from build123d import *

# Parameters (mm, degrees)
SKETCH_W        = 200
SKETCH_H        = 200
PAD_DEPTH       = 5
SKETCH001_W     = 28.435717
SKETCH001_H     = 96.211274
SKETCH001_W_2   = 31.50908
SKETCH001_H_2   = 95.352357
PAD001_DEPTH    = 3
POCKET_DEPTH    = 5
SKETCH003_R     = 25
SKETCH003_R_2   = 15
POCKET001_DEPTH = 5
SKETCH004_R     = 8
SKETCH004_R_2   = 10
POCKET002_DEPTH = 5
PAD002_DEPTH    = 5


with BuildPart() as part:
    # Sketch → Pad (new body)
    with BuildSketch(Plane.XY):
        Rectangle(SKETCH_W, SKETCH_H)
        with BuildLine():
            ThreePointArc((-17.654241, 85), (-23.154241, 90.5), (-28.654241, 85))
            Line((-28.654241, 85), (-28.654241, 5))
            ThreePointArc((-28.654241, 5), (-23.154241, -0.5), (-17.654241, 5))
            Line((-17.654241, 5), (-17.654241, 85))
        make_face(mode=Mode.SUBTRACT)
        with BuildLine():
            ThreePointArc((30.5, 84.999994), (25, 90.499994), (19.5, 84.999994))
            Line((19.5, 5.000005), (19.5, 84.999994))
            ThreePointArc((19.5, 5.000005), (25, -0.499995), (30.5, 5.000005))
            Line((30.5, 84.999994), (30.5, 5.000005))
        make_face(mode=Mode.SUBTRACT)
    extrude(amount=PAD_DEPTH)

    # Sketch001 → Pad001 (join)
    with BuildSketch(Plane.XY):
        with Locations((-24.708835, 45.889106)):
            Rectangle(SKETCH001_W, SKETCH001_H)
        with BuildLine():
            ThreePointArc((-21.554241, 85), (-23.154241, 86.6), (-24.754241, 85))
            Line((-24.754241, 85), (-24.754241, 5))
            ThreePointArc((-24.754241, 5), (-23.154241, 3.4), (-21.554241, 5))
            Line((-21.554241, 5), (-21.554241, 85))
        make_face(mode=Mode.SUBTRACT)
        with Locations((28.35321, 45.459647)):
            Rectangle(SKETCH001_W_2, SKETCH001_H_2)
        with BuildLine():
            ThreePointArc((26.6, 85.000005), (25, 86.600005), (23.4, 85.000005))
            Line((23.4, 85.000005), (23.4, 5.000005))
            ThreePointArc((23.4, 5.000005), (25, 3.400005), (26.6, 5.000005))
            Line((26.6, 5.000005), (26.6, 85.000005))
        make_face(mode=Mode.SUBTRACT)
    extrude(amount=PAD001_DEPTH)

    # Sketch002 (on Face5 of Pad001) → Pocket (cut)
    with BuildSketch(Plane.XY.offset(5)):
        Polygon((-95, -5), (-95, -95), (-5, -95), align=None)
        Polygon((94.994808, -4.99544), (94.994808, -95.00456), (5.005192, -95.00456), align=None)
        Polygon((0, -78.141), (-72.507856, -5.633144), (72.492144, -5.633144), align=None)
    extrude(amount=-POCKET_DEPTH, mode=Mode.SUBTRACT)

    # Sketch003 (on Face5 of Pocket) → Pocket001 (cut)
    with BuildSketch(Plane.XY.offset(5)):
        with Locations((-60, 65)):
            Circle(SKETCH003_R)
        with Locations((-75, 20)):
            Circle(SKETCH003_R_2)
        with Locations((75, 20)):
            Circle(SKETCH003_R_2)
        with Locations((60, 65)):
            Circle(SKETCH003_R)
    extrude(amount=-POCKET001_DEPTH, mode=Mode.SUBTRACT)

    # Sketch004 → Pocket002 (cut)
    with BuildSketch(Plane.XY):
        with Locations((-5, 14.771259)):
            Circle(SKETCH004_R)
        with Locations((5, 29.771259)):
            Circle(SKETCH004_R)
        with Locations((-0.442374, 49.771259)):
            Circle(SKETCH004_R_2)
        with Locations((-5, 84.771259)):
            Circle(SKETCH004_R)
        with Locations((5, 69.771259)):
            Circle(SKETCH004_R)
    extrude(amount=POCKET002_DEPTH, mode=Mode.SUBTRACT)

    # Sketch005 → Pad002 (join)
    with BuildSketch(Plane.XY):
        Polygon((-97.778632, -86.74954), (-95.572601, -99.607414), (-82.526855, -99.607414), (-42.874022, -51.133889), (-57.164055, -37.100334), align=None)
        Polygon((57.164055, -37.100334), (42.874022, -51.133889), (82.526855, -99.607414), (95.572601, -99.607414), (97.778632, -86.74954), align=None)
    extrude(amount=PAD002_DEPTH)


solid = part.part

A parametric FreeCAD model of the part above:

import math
import FreeCAD as App
import Part
import Sketcher

V = App.Vector
Q = App.Units.Quantity

doc = App.newDocument("Part")
params = doc.addObject("Spreadsheet::Sheet", "Params")
for row, (alias, value) in enumerate([
    ("sketch1_radius", "5.5 mm"),
    ("sketch1_width", "200 mm"),
    ("sketch1_height", "80 mm"),
    ("pad1_length", "5 mm"),
    ("sketch2_radius", "1.6 mm"),
    ("sketch2_height", "80 mm"),
    ("pad2_length", "3 mm"),
    ("sketch3_width", "90 mm"),
    ("sketch3_width2", "145 mm"),
    ("pocket1_length", "5 mm"),
    ("sketch4_diameter", "50 mm"),
    ("sketch4_diameter2", "30 mm"),
    ("pocket2_length", "5 mm"),
    ("sketch5_diameter", "16 mm"),
    ("sketch5_diameter2", "20 mm"),
    ("pocket3_length", "5 mm"),
    ("pad3_length", "5 mm"),
], start=1):
    params.set(f"A{row}", alias)
    params.set(f"B{row}", "=" + value)
    params.setAlias(f"B{row}", alias)

body = doc.addObject("PartDesign::Body", "Body")

# Sketch on XY plane
sketch1 = body.newObject("Sketcher::SketchObject", "Sketch")
sketch1.AttachmentSupport = (doc.getObject("XY_Plane"), [""])
sketch1.MapMode = "FlatFace"
sketch1.addGeometry([
    Part.LineSegment(V(-100, 100, 0), V(-100, -100, 0)),  # 0
    Part.LineSegment(V(-100, -100, 0), V(100, -100, 0)),  # 1
    Part.LineSegment(V(100, -100, 0), V(100, 100, 0)),  # 2
    Part.LineSegment(V(100, 100, 0), V(-100, 100, 0)),  # 3
    Part.ArcOfCircle(Part.Circle(V(25, 85, 0), V(0, 0, 1), 6), math.radians(0), math.radians(180)),  # 4
    Part.LineSegment(V(30, 85, 0), V(30, 5, 0)),  # 5
    Part.ArcOfCircle(Part.Circle(V(25, 5, 0), V(0, 0, 1), 6), math.radians(180), math.radians(360)),  # 6
    Part.LineSegment(V(20, 5, 0), V(20, 85, 0)),  # 7
    Part.ArcOfCircle(Part.Circle(V(-23, 85, 0), V(0, 0, 1), 6), math.radians(0), math.radians(180)),  # 8
    Part.LineSegment(V(-18, 85, 0), V(-18, 5, 0)),  # 9
    Part.ArcOfCircle(Part.Circle(V(-23, 5, 0), V(0, 0, 1), 6), math.radians(180), math.radians(360)),  # 10
    Part.LineSegment(V(-29, 5, 0), V(-29, 85, 0)),  # 11
], False)
sketch1.addConstraint([
    Sketcher.Constraint("Coincident", 0, 2, 1, 1),
    Sketcher.Constraint("Coincident", 1, 2, 2, 1),
    Sketcher.Constraint("Coincident", 2, 2, 3, 1),
    Sketcher.Constraint("Coincident", 3, 2, 0, 1),
    Sketcher.Constraint("Tangent", 4, 1, 5, 1),
    Sketcher.Constraint("Tangent", 5, 2, 6, 2),
    Sketcher.Constraint("Tangent", 6, 1, 7, 1),
    Sketcher.Constraint("Tangent", 7, 2, 4, 2),
    Sketcher.Constraint("Tangent", 8, 1, 9, 1),
    Sketcher.Constraint("Tangent", 9, 2, 10, 2),
    Sketcher.Constraint("Tangent", 10, 1, 11, 1),
    Sketcher.Constraint("Tangent", 11, 2, 8, 2),
    Sketcher.Constraint("Vertical", 0),
    Sketcher.Constraint("Horizontal", 1),
    Sketcher.Constraint("Vertical", 2),
    Sketcher.Constraint("Horizontal", 3),
    Sketcher.Constraint("Vertical", 5),
    Sketcher.Constraint("Vertical", 7),
    Sketcher.Constraint("Vertical", 9),
    Sketcher.Constraint("Vertical", 11),
    Sketcher.Constraint("Equal", 6, 8),
    Sketcher.Constraint("Symmetric", 0, 2, 2, 2, -1, 1),
    Sketcher.Constraint("Equal", 3, 0),
    Sketcher.Constraint("Radius", 4, Q("5.5 mm")),
    Sketcher.Constraint("DistanceX", 1, 1, 1, 2, Q("200 mm")),
    Sketcher.Constraint("DistanceY", 9, 2, 9, 1, Q("80 mm")),
    Sketcher.Constraint("DistanceX", -1, 1, 4, 3, Q("25 mm")),
    Sketcher.Constraint("DistanceY", -1, 1, 8, 3, Q("85 mm")),
    Sketcher.Constraint("DistanceY", 5, 2, 5, 1, Q("79.999989 mm")),
    Sketcher.Constraint("DistanceX", 8, 3, -1, 1, Q("23.154241 mm")),
    Sketcher.Constraint("DistanceY", -1, 1, 4, 3, Q("84.999994 mm")),
])
sketch1.setExpression("Constraints[23]", "Params.sketch1_radius")
sketch1.setExpression("Constraints[24]", "Params.sketch1_width")
sketch1.setExpression("Constraints[25]", "Params.sketch1_height")
pad1 = body.newObject("PartDesign::Pad", "Pad")
pad1.Profile = sketch1
pad1.setExpression("Length", "Params.pad1_length")

# Sketch on XY plane
sketch2 = body.newObject("Sketcher::SketchObject", "Sketch001")
sketch2.AttachmentSupport = (doc.getObject("XY_Plane"), [""])
sketch2.MapMode = "FlatFace"
sketch2.addGeometry([
    Part.LineSegment(V(-38.9, 94, 0), V(-38.9, -2.2, 0)),  # 0
    Part.LineSegment(V(-38.9, -2.2, 0), V(-10.5, -2.2, 0)),  # 1
    Part.LineSegment(V(-10.5, -2.2, 0), V(-10.5, 94, 0)),  # 2
    Part.LineSegment(V(-10.5, 94, 0), V(-38.9, 94, 0)),  # 3
    Part.ArcOfCircle(Part.Circle(V(-23.2, 85, 0), V(0, 0, 1), 1.6), math.radians(0), math.radians(180)),  # 4
    Part.LineSegment(V(-21.6, 85, 0), V(-21.6, 5, 0)),  # 5
    Part.ArcOfCircle(Part.Circle(V(-23.2, 5, 0), V(0, 0, 1), 1.6), math.radians(180), math.radians(360)),  # 6
    Part.LineSegment(V(-24.8, 5, 0), V(-24.8, 85, 0)),  # 7
    Part.LineSegment(V(12.6, 93.1, 0), V(12.6, -2.2, 0)),  # 8
    Part.LineSegment(V(12.6, -2.2, 0), V(44.1, -2.2, 0)),  # 9
    Part.LineSegment(V(44.1, -2.2, 0), V(44.1, 93.1, 0)),  # 10
    Part.LineSegment(V(44.1, 93.1, 0), V(12.6, 93.1, 0)),  # 11
    Part.ArcOfCircle(Part.Circle(V(25, 85, 0), V(0, 0, 1), 1.6), math.radians(0), math.radians(180)),  # 12
    Part.LineSegment(V(26.6, 85, 0), V(26.6, 5, 0)),  # 13
    Part.ArcOfCircle(Part.Circle(V(25, 5, 0), V(0, 0, 1), 1.6), math.radians(180), math.radians(360)),  # 14
    Part.LineSegment(V(23.4, 5, 0), V(23.4, 85, 0)),  # 15
], False)
sketch2.addConstraint([
    Sketcher.Constraint("Coincident", 0, 2, 1, 1),
    Sketcher.Constraint("Coincident", 1, 2, 2, 1),
    Sketcher.Constraint("Coincident", 2, 2, 3, 1),
    Sketcher.Constraint("Coincident", 3, 2, 0, 1),
    Sketcher.Constraint("Tangent", 4, 1, 5, 1),
    Sketcher.Constraint("Tangent", 5, 2, 6, 2),
    Sketcher.Constraint("Tangent", 6, 1, 7, 1),
    Sketcher.Constraint("Tangent", 7, 2, 4, 2),
    Sketcher.Constraint("Coincident", 8, 2, 9, 1),
    Sketcher.Constraint("Coincident", 9, 2, 10, 1),
    Sketcher.Constraint("Coincident", 10, 2, 11, 1),
    Sketcher.Constraint("Coincident", 11, 2, 8, 1),
    Sketcher.Constraint("Tangent", 12, 1, 13, 1),
    Sketcher.Constraint("Tangent", 13, 2, 14, 2),
    Sketcher.Constraint("Tangent", 14, 1, 15, 1),
    Sketcher.Constraint("Tangent", 15, 2, 12, 2),
    Sketcher.Constraint("Vertical", 0),
    Sketcher.Constraint("Horizontal", 1),
    Sketcher.Constraint("Vertical", 2),
    Sketcher.Constraint("Horizontal", 3),
    Sketcher.Constraint("Vertical", 5),
    Sketcher.Constraint("Vertical", 7),
    Sketcher.Constraint("Vertical", 8),
    Sketcher.Constraint("Horizontal", 9),
    Sketcher.Constraint("Vertical", 10),
    Sketcher.Constraint("Horizontal", 11),
    Sketcher.Constraint("Vertical", 13),
    Sketcher.Constraint("Vertical", 15),
    Sketcher.Constraint("Equal", 6, 12),
    Sketcher.Constraint("Horizontal", 1, 2, 8, 2),
    Sketcher.Constraint("Equal", 7, 13),
    Sketcher.Constraint("Radius", 4, Q("1.6 mm")),
    Sketcher.Constraint("DistanceY", 5, 2, 5, 1, Q("80 mm")),
    Sketcher.Constraint("DistanceY", -1, 1, 4, 3, Q("85 mm")),
    Sketcher.Constraint("DistanceX", -1, 1, 12, 3, Q("25 mm")),
    Sketcher.Constraint("DistanceX", 9, 1, 9, 2, Q("31.50908 mm")),
    Sketcher.Constraint("DistanceX", 1, 1, 1, 2, Q("28.435717 mm")),
    Sketcher.Constraint("DistanceY", 0, 2, 0, 1, Q("96.211274 mm")),
    Sketcher.Constraint("DistanceY", 8, 2, 8, 1, Q("95.352357 mm")),
    Sketcher.Constraint("DistanceX", 4, 3, -1, 1, Q("23.154241 mm")),
    Sketcher.Constraint("DistanceY", 0, 2, -1, 1, Q("2.216531 mm")),
    Sketcher.Constraint("DistanceX", -1, 1, 8, 2, Q("12.59867 mm")),
    Sketcher.Constraint("DistanceY", 14, 3, 2, 2, Q("88.994738 mm")),
    Sketcher.Constraint("DistanceX", 0, 2, -1, 1, Q("38.926693 mm")),
])
sketch2.setExpression("Constraints[31]", "Params.sketch2_radius")
sketch2.setExpression("Constraints[32]", "Params.sketch2_height")
pad2 = body.newObject("PartDesign::Pad", "Pad001")
pad2.Profile = sketch2
pad2.setExpression("Length", "Params.pad2_length")

# Sketch on XY plane
sketch3 = body.newObject("Sketcher::SketchObject", "Sketch002")
sketch3.AttachmentSupport = (doc.getObject("XY_Plane"), [""])
sketch3.MapMode = "FlatFace"
sketch3.AttachmentOffset = App.Placement(V(0, 0, 5), App.Rotation())
sketch3.addGeometry([
    Part.LineSegment(V(-95, -5, 0), V(-95, -95, 0)),  # 0
    Part.LineSegment(V(-95, -95, 0), V(-5, -95, 0)),  # 1
    Part.LineSegment(V(-5, -95, 0), V(-95, -5, 0)),  # 2
    Part.LineSegment(V(95, -95, 0), V(95, -5, 0)),  # 3
    Part.LineSegment(V(95, -5, 0), V(5, -95, 0)),  # 4
    Part.LineSegment(V(5, -95, 0), V(95, -95, 0)),  # 5
    Part.LineSegment(V(-73, -6, 0), V(0, -78, 0)),  # 6
    Part.LineSegment(V(0, -78, 0), V(72, -6, 0)),  # 7
    Part.LineSegment(V(72, -6, 0), V(-73, -6, 0)),  # 8
], False)
sketch3.addConstraint([
    Sketcher.Constraint("Coincident", 0, 2, 1, 1),
    Sketcher.Constraint("Coincident", 1, 2, 2, 1),
    Sketcher.Constraint("Coincident", 2, 2, 0, 1),
    Sketcher.Constraint("Coincident", 3, 2, 4, 1),
    Sketcher.Constraint("Coincident", 4, 2, 5, 1),
    Sketcher.Constraint("Coincident", 5, 2, 3, 1),
    Sketcher.Constraint("Coincident", 6, 2, 7, 1),
    Sketcher.Constraint("Coincident", 7, 2, 8, 1),
    Sketcher.Constraint("Coincident", 8, 2, 6, 1),
    Sketcher.Constraint("Vertical", 0),
    Sketcher.Constraint("Horizontal", 1),
    Sketcher.Constraint("Vertical", 3),
    Sketcher.Constraint("Horizontal", 5),
    Sketcher.Constraint("Horizontal", 8),
    Sketcher.Constraint("PointOnObject", 6, 2, -2),
    Sketcher.Constraint("Parallel", 2, 6),
    Sketcher.Constraint("Parallel", 4, 7),
    Sketcher.Constraint("Equal", 1, 0),
    Sketcher.Constraint("DistanceX", 1, 1, 1, 2, Q("90 mm")),
    Sketcher.Constraint("DistanceX", 8, 2, 8, 1, Q("145 mm")),
    Sketcher.Constraint("DistanceX", 0, 2, -1, 1, Q("95 mm")),
    Sketcher.Constraint("DistanceY", 0, 2, -1, 1, Q("95 mm")),
    Sketcher.Constraint("DistanceY", 6, 2, -1, 1, Q("78.141 mm")),
    Sketcher.Constraint("DistanceY", 3, 1, 3, 2, Q("90.00912 mm")),
    Sketcher.Constraint("DistanceX", 5, 1, 5, 2, Q("89.989616 mm")),
    Sketcher.Constraint("DistanceX", -1, 1, 3, 2, Q("94.994808 mm")),
    Sketcher.Constraint("DistanceY", 3, 2, -1, 1, Q("4.99544 mm")),
])
sketch3.setExpression("Constraints[18]", "Params.sketch3_width")
sketch3.setExpression("Constraints[19]", "Params.sketch3_width2")
pocket1 = body.newObject("PartDesign::Pocket", "Pocket")
pocket1.Profile = sketch3
pocket1.setExpression("Length", "Params.pocket1_length")

# Sketch on XY plane
sketch4 = body.newObject("Sketcher::SketchObject", "Sketch003")
sketch4.AttachmentSupport = (doc.getObject("XY_Plane"), [""])
sketch4.MapMode = "FlatFace"
sketch4.AttachmentOffset = App.Placement(V(0, 0, 5), App.Rotation())
sketch4.addGeometry([
    Part.Circle(V(-60, 65, 0), V(0, 0, 1), 25),
    Part.Circle(V(-75, 20, 0), V(0, 0, 1), 15),
    Part.Circle(V(75, 20, 0), V(0, 0, 1), 15),
    Part.Circle(V(60, 65, 0), V(0, 0, 1), 25),
], False)
sketch4.addConstraint([
    Sketcher.Constraint("Equal", 1, 2),
    Sketcher.Constraint("Equal", 0, 3),
    Sketcher.Constraint("Symmetric", 1, 3, 2, 3, -2),
    Sketcher.Constraint("Symmetric", 0, 3, 3, 3, -2),
    Sketcher.Constraint("Diameter", 0, Q("50 mm")),
    Sketcher.Constraint("Diameter", 1, Q("30 mm")),
    Sketcher.Constraint("DistanceX", 0, 3, -1, 1, Q("60 mm")),
    Sketcher.Constraint("DistanceY", -1, 1, 0, 3, Q("65 mm")),
    Sketcher.Constraint("DistanceX", 1, 3, -1, 1, Q("75 mm")),
    Sketcher.Constraint("DistanceY", -1, 1, 1, 3, Q("20 mm")),
])
sketch4.setExpression("Constraints[4]", "Params.sketch4_diameter")
sketch4.setExpression("Constraints[5]", "Params.sketch4_diameter2")
pocket2 = body.newObject("PartDesign::Pocket", "Pocket001")
pocket2.Profile = sketch4
pocket2.setExpression("Length", "Params.pocket2_length")

# Sketch on XY plane
sketch5 = body.newObject("Sketcher::SketchObject", "Sketch004")
sketch5.AttachmentSupport = (doc.getObject("XY_Plane"), [""])
sketch5.MapMode = "FlatFace"
sketch5.addGeometry([
    Part.Circle(V(-5, 15, 0), V(0, 0, 1), 8),  # 0
    Part.Circle(V(5, 30, 0), V(0, 0, 1), 8),  # 1
    Part.Circle(V(0, 50, 0), V(0, 0, 1), 10),  # 2
    Part.Circle(V(-5, 85, 0), V(0, 0, 1), 8),  # 3
    Part.Circle(V(5, 70, 0), V(0, 0, 1), 8),  # 4
], False)
sketch5.addConstraint([
    Sketcher.Constraint("Equal", 0, 1),
    Sketcher.Constraint("Equal", 1, 3),
    Sketcher.Constraint("Equal", 3, 4),
    Sketcher.Constraint("Vertical", 0, 3, 3, 3),
    Sketcher.Constraint("Vertical", 1, 3, 4, 3),
    Sketcher.Constraint("Diameter", 0, Q("16 mm")),
    Sketcher.Constraint("Diameter", 2, Q("20 mm")),
    Sketcher.Constraint("DistanceX", 0, 3, -1, 1, Q("5 mm")),
    Sketcher.Constraint("DistanceX", -1, 1, 1, 3, Q("5 mm")),
    Sketcher.Constraint("DistanceY", 0, 3, 1, 3, Q("15 mm")),
    Sketcher.Constraint("DistanceY", 1, 3, 2, 3, Q("20 mm")),
    Sketcher.Constraint("DistanceY", 2, 3, 3, 3, Q("35 mm")),
    Sketcher.Constraint("DistanceY", 4, 3, 3, 3, Q("15 mm")),
    Sketcher.Constraint("DistanceY", -1, 1, 0, 3, Q("14.771259 mm")),
    Sketcher.Constraint("DistanceX", 2, 3, -1, 1, Q("0.442374 mm")),
])
sketch5.setExpression("Constraints[5]", "Params.sketch5_diameter")
sketch5.setExpression("Constraints[6]", "Params.sketch5_diameter2")
pocket3 = body.newObject("PartDesign::Pocket", "Pocket002")
pocket3.Profile = sketch5
pocket3.setExpression("Length", "Params.pocket3_length")
pocket3.Reversed = True

# Sketch on XY plane
sketch6 = body.newObject("Sketcher::SketchObject", "Sketch005")
sketch6.AttachmentSupport = (doc.getObject("XY_Plane"), [""])
sketch6.MapMode = "FlatFace"
sketch6.addGeometry([
    Part.LineSegment(V(-98, -87, 0), V(-96, -100, 0)),  # 0
    Part.LineSegment(V(-96, -100, 0), V(-83, -100, 0)),  # 1
    Part.LineSegment(V(-83, -100, 0), V(-43, -51, 0)),  # 2
    Part.LineSegment(V(-43, -51, 0), V(-57, -37, 0)),  # 3
    Part.LineSegment(V(-57, -37, 0), V(-98, -87, 0)),  # 4
    Part.LineSegment(V(57, -37, 0), V(43, -51, 0)),  # 5
    Part.LineSegment(V(43, -51, 0), V(83, -100, 0)),  # 6
    Part.LineSegment(V(83, -100, 0), V(96, -100, 0)),  # 7
    Part.LineSegment(V(96, -100, 0), V(98, -87, 0)),  # 8
    Part.LineSegment(V(98, -87, 0), V(57, -37, 0)),  # 9
], False)
sketch6.addConstraint([
    Sketcher.Constraint("Coincident", 0, 2, 1, 1),
    Sketcher.Constraint("Coincident", 1, 2, 2, 1),
    Sketcher.Constraint("Coincident", 2, 2, 3, 1),
    Sketcher.Constraint("Coincident", 3, 2, 4, 1),
    Sketcher.Constraint("Coincident", 4, 2, 0, 1),
    Sketcher.Constraint("Coincident", 5, 2, 6, 1),
    Sketcher.Constraint("Coincident", 6, 2, 7, 1),
    Sketcher.Constraint("Coincident", 7, 2, 8, 1),
    Sketcher.Constraint("Coincident", 8, 2, 9, 1),
    Sketcher.Constraint("Coincident", 9, 2, 5, 1),
    Sketcher.Constraint("Horizontal", 1),
    Sketcher.Constraint("Horizontal", 7),
    Sketcher.Constraint("Symmetric", 2, 2, 5, 2, -2),
    Sketcher.Constraint("Symmetric", 1, 2, 6, 2, -2),
    Sketcher.Constraint("Symmetric", 4, 2, 8, 2, -2),
    Sketcher.Constraint("Symmetric", 3, 2, 9, 2, -2),
    Sketcher.Constraint("Parallel", 2, 4),
    Sketcher.Constraint("Equal", 1, 7),
    Sketcher.Constraint("DistanceX", 0, 2, -1, 1, Q("95.572601 mm")),
    Sketcher.Constraint("DistanceX", 1, 2, 3, 2, Q("25.3628 mm")),
    Sketcher.Constraint("Distance", 2, Q("62.626111 mm")),
    Sketcher.Constraint("Distance", 4, Q("64.145051 mm")),
    Sketcher.Constraint("DistanceX", 1, 1, 1, 2, Q("13.045746 mm")),
    Sketcher.Constraint("DistanceX", 2, 2, -1, 1, Q("42.874022 mm")),
    Sketcher.Constraint("DistanceY", 2, 2, -1, 1, Q("51.133889 mm")),
    Sketcher.Constraint("DistanceY", 4, 2, -1, 1, Q("86.74954 mm")),
])
pad3 = body.newObject("PartDesign::Pad", "Pad002")
pad3.Profile = sketch6
pad3.setExpression("Length", "Params.pad3_length")

doc.recompute()
